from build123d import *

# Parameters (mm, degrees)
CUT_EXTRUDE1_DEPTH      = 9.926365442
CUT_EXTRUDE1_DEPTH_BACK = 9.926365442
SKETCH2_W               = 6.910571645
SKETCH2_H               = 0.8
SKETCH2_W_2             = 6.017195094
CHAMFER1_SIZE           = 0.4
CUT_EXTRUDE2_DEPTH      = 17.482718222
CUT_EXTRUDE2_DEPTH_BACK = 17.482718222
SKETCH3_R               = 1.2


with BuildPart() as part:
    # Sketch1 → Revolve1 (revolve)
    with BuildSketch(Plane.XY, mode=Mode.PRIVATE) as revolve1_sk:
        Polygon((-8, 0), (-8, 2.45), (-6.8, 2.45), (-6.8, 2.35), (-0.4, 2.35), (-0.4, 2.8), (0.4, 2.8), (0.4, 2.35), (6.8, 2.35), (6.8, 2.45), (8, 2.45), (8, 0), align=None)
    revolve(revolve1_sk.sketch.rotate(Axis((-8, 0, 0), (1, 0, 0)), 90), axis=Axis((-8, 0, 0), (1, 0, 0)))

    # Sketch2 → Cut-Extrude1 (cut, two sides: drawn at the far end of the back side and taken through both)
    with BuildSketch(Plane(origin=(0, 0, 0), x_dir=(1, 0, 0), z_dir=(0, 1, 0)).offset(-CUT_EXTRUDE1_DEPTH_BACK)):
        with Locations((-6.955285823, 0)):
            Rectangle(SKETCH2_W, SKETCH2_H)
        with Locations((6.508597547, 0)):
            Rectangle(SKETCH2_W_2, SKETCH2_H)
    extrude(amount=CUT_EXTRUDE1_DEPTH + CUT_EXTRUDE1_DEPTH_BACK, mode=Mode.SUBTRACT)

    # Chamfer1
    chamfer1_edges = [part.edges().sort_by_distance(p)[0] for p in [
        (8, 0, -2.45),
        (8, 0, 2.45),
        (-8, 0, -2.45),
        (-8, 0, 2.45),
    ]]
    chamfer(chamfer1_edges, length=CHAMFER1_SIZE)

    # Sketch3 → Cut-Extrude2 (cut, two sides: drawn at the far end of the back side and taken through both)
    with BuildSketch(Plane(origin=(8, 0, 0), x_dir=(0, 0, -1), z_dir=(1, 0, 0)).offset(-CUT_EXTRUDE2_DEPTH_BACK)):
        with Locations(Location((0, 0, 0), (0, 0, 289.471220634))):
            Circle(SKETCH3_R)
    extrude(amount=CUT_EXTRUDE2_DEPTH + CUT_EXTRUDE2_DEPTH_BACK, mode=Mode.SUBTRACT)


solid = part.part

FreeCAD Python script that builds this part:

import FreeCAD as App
import Part
import Sketcher
Q = App.Units.Quantity


def edges_at(feature, points):
    """Names of the edges that pass closest to the given points."""
    edges = feature.Shape.Edges
    near = lambda p: min(range(len(edges)), key=lambda i: edges[i].distToShape(Part.Vertex(*p))[0])
    return sorted({f"Edge{near(p) + 1}" for p in points})


def add_polygon(sketch, points):
    """Adds a closed chain of lines whose ends are joined by coincident constraints."""
    first, n = sketch.GeometryCount, len(points)
    for a, b in zip(points, points[1:] + points[:1]):
        sketch.addGeometry(Part.LineSegment(App.Vector(*a, 0), App.Vector(*b, 0)), False)
    for i in range(n):
        sketch.addConstraint(Sketcher.Constraint("Coincident", first + i, 2, first + (i + 1) % n, 1))

doc = App.newDocument("Part")
params = doc.addObject("Spreadsheet::Sheet", "Params")
for row, (alias, value) in enumerate([
    ("sketch1_width", "16 mm"),
    ("sketch1_width2", "1.2 mm"),
    ("sketch1_width3", "6.4 mm"),
    ("sketch1_height", "0.1 mm"),
    ("sketch1_height2", "2.45 mm"),
    ("revolution_angle", "360 deg"),
    ("sketch2_height", "0.8 mm"),
    ("chamfer_size", "0.4 mm"),
    ("sketch3_diameter", "2.4 mm"),
], start=1):
    params.set(f"A{row}", alias)
    params.set(f"B{row}", "=" + value)
    params.setAlias(f"B{row}", alias)

body = doc.addObject("PartDesign::Body", "Body")

sketch1 = body.newObject("Sketcher::SketchObject", "Sketch")
sketch1.AttachmentSupport = (doc.getObject("XY_Plane"), [""])
sketch1.MapMode = "FlatFace"
add_polygon(sketch1, [(-8, 2.45), (-8, 0), (8, 0), (8, 2.45), (6.8, 2.45), (6.8, 2.35), (0.4, 2.35), (0.4, 2.8), (-0.4, 2.8), (-0.4, 2.35), (-6.8, 2.35), (-6.8, 2.45)])
sketch1.addConstraint(Sketcher.Constraint("Vertical", 0))
sketch1.addConstraint(Sketcher.Constraint("Horizontal", 1))
sketch1.addConstraint(Sketcher.Constraint("Vertical", 2))
sketch1.addConstraint(Sketcher.Constraint("Horizontal", 3))
sketch1.addConstraint(Sketcher.Constraint("Vertical", 4))
sketch1.addConstraint(Sketcher.Constraint("Horizontal", 5))
sketch1.addConstraint(Sketcher.Constraint("Vertical", 6))
sketch1.addConstraint(Sketcher.Constraint("Horizontal", 7))
sketch1.addConstraint(Sketcher.Constraint("Vertical", 8))
sketch1.addConstraint(Sketcher.Constraint("Horizontal", 9))
sketch1.addConstraint(Sketcher.Constraint("Vertical", 10))
sketch1.addConstraint(Sketcher.Constraint("Horizontal", 11))
sketch1.addConstraint(Sketcher.Constraint("Symmetric", 0, 2, 1, 2, -1, 1))
sketch1.addConstraint(Sketcher.Constraint("Symmetric", 5, 2, 8, 2, -2))
sketch1.addConstraint(Sketcher.Constraint("Symmetric", 3, 2, 10, 2, -2))
sketch1.addConstraint(Sketcher.Constraint("DistanceX", 1, 1, 1, 2, Q("16 mm")))
sketch1.addConstraint(Sketcher.Constraint("DistanceX", 3, 2, 3, 1, Q("1.2 mm")))
sketch1.addConstraint(Sketcher.Constraint("DistanceX", 5, 2, 5, 1, Q("6.4 mm")))
sketch1.addConstraint(Sketcher.Constraint("DistanceY", 4, 2, 4, 1, Q("0.1 mm")))
sketch1.addConstraint(Sketcher.Constraint("DistanceY", 0, 2, 0, 1, Q("2.45 mm")))
sketch1.addConstraint(Sketcher.Constraint("DistanceY", 6, 1, 6, 2, Q("0.45 mm")))
sketch1.setExpression("Constraints[27]", "Params.sketch1_width")
sketch1.setExpression("Constraints[28]", "Params.sketch1_width2")
sketch1.setExpression("Constraints[29]", "Params.sketch1_width3")
sketch1.setExpression("Constraints[30]", "Params.sketch1_height")
sketch1.setExpression("Constraints[31]", "Params.sketch1_height2")
revolution = body.newObject("PartDesign::Revolution", "Revolution")
revolution.Profile = sketch1
revolution.ReferenceAxis = (sketch1, ["H_Axis"])
revolution.setExpression("Angle", "Params.revolution_angle")

sketch2 = body.newObject("Sketcher::SketchObject", "Sketch001")
sketch2.AttachmentSupport = (doc.getObject("XZ_Plane"), [""])
sketch2.MapMode = "FlatFace"
add_polygon(sketch2, [(-10.4, -0.4), (-10.4, 0.4), (-3.5, 0.4), (-3.5, -0.4)])
add_polygon(sketch2, [(3.5, -0.4), (3.5, 0.4), (9.5, 0.4), (9.5, -0.4)])
sketch2.addConstraint(Sketcher.Constraint("Vertical", 0))
sketch2.addConstraint(Sketcher.Constraint("Horizontal", 1))
sketch2.addConstraint(Sketcher.Constraint("Vertical", 2))
sketch2.addConstraint(Sketcher.Constraint("Horizontal", 3))
sketch2.addConstraint(Sketcher.Constraint("Vertical", 4))
sketch2.addConstraint(Sketcher.Constraint("Horizontal", 5))
sketch2.addConstraint(Sketcher.Constraint("Vertical", 6))
sketch2.addConstraint(Sketcher.Constraint("Horizontal", 7))
sketch2.addConstraint(Sketcher.Constraint("Symmetric", 2, 2, 4, 2, -1, 1))
sketch2.addConstraint(Sketcher.Constraint("Horizontal", 1, 2, 4, 2))
sketch2.addConstraint(Sketcher.Constraint("Horizontal", 3, 2, 6, 2))
sketch2.addConstraint(Sketcher.Constraint("DistanceY", 0, 1, 0, 2, Q("0.8 mm")))
sketch2.addConstraint(Sketcher.Constraint("DistanceX", 1, 2, 4, 2, Q("7 mm")))
sketch2.addConstraint(Sketcher.Constraint("DistanceX", 1, 1, 1, 2, Q("6.910572 mm")))
sketch2.addConstraint(Sketcher.Constraint("DistanceX", 5, 1, 5, 2, Q("6.017195 mm")))
sketch2.setExpression("Constraints[19]", "Params.sketch2_height")
pocket1 = body.newObject("PartDesign::Pocket", "Pocket")
pocket1.Profile = sketch2
pocket1.Type = "ThroughAll"
pocket1.Midplane = True
doc.recompute()

chamfer = body.newObject("PartDesign::Chamfer", "Chamfer")
chamfer.Base = (pocket1, edges_at(pocket1, [
    (8, 0, -2.45),
    (8, 0, 2.45),
    (-8, 0, -2.45),
    (-8, 0, 2.45),
]))
chamfer.setExpression("Size", "Params.chamfer_size")

sketch3 = body.newObject("Sketcher::SketchObject", "Sketch002")
sketch3.AttachmentSupport = (doc.getObject("YZ_Plane"), [""])
sketch3.MapMode = "FlatFace"
sketch3.AttachmentOffset = App.Placement(App.Vector(0, 0, 8), App.Rotation())
sketch3.addGeometry(Part.Circle(App.Vector(0, 0, 0), App.Vector(0, 0, 1), 1.2), False)
sketch3.addConstraint(Sketcher.Constraint("Coincident", 0, 3, -1, 1))
sketch3.addConstraint(Sketcher.Constraint("Diameter", 0, Q("2.4 mm")))
sketch3.setExpression("Constraints[1]", "Params.sketch3_diameter")
pocket2 = body.newObject("PartDesign::Pocket", "Pocket001")
pocket2.Profile = sketch3
pocket2.Type = "ThroughAll"
pocket2.Midplane = True

doc.recompute()
